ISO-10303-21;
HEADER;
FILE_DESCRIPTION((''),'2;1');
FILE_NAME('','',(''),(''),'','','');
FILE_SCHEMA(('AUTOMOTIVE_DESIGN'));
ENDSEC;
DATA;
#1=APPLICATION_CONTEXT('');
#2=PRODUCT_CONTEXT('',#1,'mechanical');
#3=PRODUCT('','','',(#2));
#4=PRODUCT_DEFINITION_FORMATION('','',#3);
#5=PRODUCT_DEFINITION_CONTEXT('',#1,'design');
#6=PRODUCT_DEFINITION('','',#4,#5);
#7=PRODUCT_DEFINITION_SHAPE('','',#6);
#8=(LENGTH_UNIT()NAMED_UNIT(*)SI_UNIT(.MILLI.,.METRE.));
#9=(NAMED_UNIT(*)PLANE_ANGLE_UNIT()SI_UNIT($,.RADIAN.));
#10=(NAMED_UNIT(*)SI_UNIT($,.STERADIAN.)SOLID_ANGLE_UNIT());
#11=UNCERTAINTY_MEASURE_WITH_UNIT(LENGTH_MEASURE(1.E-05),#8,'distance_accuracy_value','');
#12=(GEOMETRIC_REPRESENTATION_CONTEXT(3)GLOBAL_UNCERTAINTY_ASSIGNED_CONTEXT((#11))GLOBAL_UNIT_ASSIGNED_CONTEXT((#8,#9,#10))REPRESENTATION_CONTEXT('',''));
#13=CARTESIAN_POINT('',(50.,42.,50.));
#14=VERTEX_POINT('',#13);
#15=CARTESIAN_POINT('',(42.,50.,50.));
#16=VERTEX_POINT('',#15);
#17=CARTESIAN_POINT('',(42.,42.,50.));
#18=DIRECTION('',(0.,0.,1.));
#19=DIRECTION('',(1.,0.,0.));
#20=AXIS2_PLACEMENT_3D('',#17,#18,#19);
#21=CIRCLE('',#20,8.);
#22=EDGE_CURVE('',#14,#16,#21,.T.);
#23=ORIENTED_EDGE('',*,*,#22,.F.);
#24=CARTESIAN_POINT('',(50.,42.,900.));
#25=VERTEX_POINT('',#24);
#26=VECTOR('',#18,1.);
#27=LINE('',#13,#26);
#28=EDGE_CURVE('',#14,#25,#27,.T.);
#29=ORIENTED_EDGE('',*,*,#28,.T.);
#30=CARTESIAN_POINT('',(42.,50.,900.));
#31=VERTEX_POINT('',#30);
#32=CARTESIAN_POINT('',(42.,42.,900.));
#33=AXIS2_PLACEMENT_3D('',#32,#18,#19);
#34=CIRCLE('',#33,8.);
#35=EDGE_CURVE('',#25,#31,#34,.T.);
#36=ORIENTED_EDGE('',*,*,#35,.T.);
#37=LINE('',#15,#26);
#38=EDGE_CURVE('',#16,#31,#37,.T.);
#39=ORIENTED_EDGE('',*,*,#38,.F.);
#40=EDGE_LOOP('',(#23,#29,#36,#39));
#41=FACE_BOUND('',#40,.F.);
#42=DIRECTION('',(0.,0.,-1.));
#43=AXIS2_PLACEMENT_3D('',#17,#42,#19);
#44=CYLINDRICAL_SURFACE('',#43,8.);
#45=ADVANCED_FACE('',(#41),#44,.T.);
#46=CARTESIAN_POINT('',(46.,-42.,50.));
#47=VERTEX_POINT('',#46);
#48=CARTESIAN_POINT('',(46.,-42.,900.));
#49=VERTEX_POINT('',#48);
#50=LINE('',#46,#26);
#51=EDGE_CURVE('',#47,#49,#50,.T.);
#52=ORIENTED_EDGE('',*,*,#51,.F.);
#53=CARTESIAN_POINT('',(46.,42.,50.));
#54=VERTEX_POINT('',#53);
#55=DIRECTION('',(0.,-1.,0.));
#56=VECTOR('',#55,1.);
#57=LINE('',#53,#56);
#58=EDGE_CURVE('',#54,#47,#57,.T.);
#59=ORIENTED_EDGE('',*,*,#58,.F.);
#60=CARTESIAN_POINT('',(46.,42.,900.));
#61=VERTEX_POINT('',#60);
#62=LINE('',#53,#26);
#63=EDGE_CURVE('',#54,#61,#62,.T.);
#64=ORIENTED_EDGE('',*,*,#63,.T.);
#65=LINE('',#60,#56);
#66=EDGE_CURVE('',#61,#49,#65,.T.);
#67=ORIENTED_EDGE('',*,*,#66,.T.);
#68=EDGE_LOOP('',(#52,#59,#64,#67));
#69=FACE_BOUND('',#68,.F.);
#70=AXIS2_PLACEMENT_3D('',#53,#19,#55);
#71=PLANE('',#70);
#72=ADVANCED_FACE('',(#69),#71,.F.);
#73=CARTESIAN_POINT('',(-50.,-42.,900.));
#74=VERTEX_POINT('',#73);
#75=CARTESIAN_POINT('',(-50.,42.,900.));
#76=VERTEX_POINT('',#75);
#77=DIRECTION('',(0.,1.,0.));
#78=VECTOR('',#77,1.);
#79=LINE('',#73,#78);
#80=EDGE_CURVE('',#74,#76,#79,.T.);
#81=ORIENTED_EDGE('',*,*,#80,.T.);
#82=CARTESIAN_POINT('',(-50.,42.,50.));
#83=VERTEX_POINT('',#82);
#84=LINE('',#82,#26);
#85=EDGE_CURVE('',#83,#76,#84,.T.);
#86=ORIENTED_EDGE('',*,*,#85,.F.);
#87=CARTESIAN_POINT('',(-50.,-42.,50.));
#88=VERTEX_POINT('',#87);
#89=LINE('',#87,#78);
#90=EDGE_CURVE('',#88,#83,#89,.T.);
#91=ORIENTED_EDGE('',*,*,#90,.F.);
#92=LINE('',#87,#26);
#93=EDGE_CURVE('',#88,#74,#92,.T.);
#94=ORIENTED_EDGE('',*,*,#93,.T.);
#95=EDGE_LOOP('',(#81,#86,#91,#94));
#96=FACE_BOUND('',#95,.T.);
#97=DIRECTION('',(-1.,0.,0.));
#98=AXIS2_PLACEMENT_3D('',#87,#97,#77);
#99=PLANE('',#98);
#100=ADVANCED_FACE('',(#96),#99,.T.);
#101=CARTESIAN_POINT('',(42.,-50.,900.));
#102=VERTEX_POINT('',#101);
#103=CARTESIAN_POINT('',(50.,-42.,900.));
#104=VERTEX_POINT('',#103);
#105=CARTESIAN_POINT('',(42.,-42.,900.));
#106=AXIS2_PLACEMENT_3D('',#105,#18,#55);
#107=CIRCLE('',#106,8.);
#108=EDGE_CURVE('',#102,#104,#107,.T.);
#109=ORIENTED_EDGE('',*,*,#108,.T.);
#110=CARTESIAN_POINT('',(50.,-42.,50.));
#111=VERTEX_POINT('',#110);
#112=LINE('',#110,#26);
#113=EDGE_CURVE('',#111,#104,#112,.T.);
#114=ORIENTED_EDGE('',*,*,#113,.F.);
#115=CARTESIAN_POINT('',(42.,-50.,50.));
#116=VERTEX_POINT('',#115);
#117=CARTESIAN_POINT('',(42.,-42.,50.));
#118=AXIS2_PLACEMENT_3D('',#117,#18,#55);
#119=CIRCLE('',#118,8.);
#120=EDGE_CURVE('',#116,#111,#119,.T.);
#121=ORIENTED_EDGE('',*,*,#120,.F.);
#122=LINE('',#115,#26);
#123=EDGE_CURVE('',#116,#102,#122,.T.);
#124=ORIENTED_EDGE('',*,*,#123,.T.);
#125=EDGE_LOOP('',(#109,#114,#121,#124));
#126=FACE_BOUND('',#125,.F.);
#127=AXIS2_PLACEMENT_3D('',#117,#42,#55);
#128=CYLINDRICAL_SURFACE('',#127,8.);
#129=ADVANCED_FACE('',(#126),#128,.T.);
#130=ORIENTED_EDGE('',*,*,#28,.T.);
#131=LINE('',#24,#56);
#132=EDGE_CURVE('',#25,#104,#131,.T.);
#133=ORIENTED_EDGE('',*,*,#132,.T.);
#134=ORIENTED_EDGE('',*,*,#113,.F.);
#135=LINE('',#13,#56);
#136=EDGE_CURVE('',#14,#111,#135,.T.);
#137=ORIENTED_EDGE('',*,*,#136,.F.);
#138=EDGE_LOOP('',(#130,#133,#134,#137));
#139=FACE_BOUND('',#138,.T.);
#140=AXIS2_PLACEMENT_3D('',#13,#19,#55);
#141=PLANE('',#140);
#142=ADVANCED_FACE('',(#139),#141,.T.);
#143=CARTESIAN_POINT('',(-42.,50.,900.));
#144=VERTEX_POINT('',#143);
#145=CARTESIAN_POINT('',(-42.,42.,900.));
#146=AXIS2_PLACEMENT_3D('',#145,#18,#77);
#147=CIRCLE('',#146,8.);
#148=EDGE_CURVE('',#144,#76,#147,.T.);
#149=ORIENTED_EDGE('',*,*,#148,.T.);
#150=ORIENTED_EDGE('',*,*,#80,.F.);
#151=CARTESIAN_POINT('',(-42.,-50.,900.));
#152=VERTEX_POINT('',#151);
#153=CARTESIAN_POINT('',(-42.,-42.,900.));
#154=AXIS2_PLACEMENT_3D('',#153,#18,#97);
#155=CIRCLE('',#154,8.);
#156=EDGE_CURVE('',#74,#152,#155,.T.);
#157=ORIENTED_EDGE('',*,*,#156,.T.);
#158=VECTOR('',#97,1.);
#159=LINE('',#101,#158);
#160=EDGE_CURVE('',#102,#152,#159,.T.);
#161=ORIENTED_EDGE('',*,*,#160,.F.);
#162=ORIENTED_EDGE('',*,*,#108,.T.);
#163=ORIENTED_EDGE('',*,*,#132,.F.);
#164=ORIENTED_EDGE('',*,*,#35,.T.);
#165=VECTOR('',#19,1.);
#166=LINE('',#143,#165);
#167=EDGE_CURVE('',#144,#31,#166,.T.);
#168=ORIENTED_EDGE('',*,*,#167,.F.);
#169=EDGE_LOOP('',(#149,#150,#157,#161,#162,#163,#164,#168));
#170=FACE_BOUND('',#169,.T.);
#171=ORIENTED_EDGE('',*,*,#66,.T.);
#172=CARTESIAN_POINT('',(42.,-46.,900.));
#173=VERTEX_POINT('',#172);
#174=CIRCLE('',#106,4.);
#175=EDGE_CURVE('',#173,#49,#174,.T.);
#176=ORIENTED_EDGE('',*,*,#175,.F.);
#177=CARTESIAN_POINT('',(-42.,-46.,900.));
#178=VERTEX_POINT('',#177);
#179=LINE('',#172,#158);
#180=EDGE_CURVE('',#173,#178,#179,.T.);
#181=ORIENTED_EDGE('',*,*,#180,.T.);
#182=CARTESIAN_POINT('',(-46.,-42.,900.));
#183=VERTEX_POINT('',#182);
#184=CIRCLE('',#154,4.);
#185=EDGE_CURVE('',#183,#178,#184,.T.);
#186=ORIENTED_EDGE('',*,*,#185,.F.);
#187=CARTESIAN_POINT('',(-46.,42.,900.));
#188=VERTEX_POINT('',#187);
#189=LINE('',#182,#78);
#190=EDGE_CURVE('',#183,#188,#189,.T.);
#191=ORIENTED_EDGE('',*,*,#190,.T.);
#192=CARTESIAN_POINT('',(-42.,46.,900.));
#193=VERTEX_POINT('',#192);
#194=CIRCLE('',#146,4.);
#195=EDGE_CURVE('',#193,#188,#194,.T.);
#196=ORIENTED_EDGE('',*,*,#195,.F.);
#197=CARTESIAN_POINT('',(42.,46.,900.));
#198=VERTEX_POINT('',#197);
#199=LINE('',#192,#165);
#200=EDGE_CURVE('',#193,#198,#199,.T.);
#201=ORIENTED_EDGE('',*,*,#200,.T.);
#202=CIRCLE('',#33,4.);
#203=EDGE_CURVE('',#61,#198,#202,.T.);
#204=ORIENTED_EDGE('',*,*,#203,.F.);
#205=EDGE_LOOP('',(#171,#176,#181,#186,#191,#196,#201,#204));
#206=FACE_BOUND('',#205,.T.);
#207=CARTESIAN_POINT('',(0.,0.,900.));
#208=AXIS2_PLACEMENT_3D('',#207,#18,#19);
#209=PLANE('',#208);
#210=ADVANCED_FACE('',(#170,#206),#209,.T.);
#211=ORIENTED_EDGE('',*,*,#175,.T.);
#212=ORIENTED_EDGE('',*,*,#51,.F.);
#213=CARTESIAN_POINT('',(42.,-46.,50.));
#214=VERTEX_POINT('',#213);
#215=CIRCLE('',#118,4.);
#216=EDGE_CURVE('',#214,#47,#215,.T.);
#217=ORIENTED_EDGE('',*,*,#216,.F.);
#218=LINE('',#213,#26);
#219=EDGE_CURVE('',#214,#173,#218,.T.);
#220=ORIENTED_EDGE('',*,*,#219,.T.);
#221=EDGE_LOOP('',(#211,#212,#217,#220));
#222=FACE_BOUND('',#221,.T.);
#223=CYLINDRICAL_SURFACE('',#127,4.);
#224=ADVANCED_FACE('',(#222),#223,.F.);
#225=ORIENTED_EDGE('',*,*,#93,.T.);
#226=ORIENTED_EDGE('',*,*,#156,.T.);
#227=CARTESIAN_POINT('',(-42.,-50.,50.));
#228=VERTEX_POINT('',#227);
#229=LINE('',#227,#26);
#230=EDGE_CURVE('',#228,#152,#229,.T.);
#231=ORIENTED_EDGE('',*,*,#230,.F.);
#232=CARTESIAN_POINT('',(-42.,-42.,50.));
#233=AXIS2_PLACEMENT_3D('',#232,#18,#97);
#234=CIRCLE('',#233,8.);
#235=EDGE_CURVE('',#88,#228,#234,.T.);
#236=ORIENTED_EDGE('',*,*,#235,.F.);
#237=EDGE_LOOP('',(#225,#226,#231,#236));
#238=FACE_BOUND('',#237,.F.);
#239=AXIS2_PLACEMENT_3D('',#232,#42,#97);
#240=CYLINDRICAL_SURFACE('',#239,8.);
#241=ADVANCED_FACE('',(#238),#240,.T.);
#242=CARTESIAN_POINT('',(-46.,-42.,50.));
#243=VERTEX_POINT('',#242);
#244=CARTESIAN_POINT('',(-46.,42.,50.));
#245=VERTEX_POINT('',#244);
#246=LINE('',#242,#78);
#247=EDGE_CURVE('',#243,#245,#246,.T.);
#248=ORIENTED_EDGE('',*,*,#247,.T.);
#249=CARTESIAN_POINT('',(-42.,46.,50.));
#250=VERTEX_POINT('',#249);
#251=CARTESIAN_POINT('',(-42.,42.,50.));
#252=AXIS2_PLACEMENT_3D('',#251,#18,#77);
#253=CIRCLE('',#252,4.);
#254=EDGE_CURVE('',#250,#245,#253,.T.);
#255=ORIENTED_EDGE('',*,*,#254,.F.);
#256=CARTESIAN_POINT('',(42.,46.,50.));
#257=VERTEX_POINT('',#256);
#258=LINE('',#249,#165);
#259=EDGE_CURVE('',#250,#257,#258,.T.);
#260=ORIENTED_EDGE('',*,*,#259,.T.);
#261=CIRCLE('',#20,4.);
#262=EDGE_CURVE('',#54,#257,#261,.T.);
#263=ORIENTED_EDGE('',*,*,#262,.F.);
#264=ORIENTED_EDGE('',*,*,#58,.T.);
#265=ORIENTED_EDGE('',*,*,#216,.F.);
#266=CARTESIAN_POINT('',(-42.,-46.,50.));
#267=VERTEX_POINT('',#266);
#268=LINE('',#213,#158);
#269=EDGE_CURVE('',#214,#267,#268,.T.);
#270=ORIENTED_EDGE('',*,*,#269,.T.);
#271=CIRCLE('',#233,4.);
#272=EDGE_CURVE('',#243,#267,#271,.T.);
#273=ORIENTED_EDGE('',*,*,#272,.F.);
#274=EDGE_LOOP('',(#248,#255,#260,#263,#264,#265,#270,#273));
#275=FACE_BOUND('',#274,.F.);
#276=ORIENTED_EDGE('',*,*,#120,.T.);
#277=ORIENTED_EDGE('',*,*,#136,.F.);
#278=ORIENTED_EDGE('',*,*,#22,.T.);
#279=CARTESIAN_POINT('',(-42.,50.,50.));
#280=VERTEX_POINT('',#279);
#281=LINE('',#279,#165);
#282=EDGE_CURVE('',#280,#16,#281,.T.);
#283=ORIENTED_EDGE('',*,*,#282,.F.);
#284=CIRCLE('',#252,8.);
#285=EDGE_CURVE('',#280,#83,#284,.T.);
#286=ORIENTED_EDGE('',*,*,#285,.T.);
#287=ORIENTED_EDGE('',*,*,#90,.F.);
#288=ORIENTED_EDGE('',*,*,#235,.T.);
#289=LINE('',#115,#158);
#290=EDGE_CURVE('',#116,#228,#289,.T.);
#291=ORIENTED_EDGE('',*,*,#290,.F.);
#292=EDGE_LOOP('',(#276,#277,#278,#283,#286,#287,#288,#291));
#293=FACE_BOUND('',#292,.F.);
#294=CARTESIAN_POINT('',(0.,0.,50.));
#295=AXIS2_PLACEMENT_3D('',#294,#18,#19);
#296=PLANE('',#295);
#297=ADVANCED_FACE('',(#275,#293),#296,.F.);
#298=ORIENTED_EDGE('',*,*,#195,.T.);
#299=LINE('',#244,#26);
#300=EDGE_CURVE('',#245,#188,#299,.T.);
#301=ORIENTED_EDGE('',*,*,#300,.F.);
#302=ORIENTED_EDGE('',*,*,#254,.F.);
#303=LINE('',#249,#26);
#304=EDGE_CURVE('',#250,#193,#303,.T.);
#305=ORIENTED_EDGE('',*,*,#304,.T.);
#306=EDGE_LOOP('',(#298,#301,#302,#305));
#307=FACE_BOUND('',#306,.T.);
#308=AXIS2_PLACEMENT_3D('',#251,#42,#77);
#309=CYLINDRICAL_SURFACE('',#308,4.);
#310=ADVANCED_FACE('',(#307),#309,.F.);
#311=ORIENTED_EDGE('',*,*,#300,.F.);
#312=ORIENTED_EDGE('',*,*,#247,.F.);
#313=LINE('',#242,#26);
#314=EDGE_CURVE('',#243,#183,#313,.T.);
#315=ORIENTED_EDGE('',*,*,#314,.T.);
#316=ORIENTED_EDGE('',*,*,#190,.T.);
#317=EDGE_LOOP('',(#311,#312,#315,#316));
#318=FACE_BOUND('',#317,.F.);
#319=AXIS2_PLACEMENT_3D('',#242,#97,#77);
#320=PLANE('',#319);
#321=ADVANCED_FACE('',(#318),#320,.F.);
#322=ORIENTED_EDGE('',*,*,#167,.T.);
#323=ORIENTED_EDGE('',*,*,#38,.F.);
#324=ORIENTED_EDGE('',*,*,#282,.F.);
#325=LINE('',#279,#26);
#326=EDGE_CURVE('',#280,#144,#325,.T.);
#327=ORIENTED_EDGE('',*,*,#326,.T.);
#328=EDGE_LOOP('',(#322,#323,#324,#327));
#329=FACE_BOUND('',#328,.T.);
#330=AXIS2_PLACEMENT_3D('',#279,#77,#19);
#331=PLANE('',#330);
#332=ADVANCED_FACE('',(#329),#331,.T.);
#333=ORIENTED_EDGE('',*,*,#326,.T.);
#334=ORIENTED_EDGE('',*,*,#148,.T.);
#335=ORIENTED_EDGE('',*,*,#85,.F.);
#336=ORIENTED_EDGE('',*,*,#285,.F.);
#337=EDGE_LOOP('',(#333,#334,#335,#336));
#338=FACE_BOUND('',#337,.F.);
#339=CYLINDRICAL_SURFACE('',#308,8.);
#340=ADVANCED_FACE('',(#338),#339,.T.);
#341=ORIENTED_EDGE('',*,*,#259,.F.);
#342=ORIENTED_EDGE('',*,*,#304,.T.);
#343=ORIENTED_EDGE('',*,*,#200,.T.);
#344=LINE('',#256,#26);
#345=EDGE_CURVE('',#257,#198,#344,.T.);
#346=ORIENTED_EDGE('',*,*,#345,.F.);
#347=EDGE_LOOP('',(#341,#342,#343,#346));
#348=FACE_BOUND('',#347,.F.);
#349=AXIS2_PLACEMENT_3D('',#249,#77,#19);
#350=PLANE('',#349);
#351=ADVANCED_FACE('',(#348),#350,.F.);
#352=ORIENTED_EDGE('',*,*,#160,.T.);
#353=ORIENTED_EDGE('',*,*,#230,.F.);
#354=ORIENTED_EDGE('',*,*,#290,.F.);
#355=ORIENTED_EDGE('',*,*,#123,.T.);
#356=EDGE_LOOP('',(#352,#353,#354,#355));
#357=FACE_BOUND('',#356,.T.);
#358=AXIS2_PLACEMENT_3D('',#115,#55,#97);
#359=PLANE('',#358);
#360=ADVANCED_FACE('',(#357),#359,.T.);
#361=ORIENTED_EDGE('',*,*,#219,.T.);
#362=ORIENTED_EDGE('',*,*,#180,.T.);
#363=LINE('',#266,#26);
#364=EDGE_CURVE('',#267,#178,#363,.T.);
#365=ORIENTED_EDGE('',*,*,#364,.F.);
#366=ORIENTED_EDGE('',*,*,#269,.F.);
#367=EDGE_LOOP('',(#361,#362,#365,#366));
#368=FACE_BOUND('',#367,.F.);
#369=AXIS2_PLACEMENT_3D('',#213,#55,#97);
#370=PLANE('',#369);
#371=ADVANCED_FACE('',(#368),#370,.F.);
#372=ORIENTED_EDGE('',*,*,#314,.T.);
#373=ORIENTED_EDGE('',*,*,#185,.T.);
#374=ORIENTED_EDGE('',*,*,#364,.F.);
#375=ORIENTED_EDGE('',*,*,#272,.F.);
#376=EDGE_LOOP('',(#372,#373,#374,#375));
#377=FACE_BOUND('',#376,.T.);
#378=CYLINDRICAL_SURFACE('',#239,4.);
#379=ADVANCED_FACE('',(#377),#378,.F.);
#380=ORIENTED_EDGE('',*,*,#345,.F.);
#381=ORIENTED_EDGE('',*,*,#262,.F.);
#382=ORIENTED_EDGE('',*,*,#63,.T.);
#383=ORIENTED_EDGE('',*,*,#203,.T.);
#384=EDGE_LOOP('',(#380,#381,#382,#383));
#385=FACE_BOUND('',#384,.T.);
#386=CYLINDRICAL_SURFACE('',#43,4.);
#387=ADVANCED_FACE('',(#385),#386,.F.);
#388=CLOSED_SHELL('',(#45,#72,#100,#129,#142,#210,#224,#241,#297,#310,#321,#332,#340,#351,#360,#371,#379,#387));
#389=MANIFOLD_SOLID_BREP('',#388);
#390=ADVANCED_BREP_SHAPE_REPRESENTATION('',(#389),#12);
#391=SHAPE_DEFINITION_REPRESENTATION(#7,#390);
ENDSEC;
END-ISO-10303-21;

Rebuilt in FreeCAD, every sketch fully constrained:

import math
import FreeCAD as App
import Part
import Sketcher
from FreeCAD import Vector

doc = App.newDocument("Part")
params = doc.addObject("Spreadsheet::Sheet", "Params")
for row, (alias, value) in enumerate([
    ("sketch1_radius", "8 mm"),
    ("sketch1_radius2", "4 mm"),
    ("pad1_length", "850 mm"),
], start=1):
    params.set(f"A{row}", alias)
    params.set(f"B{row}", "=" + value)
    params.setAlias(f"B{row}", alias)

body = doc.addObject("PartDesign::Body", "Body")

# Sketch on XY plane
sketch1 = body.newObject("Sketcher::SketchObject", "Sketch")
sketch1.AttachmentSupport = (doc.getObject("XY_Plane"), [""])
sketch1.MapMode = "FlatFace"
sketch1.AttachmentOffset = App.Placement(Vector(0, 0, 50), App.Rotation())
sketch1.addGeometry([
    Part.LineSegment(Vector(-50, 42, 0), Vector(-50, -42, 0)),  # 0
    Part.ArcOfCircle(Part.Circle(Vector(-42, -42, 0), Vector(0, 0, 1), 8), math.radians(180), math.radians(270)),  # 1
    Part.LineSegment(Vector(-42, -50, 0), Vector(42, -50, 0)),  # 2
    Part.ArcOfCircle(Part.Circle(Vector(42, -42, 0), Vector(0, 0, 1), 8), math.radians(-90), math.radians(0)),  # 3
    Part.LineSegment(Vector(50, -42, 0), Vector(50, 42, 0)),  # 4
    Part.ArcOfCircle(Part.Circle(Vector(42, 42, 0), Vector(0, 0, 1), 8), math.radians(0), math.radians(90)),  # 5
    Part.LineSegment(Vector(42, 50, 0), Vector(-42, 50, 0)),  # 6
    Part.ArcOfCircle(Part.Circle(Vector(-42, 42, 0), Vector(0, 0, 1), 8), math.radians(90), math.radians(180)),  # 7
    Part.ArcOfCircle(Part.Circle(Vector(-42, 42, 0), Vector(0, 0, 1), 4), math.radians(90), math.radians(180)),  # 8
    Part.LineSegment(Vector(-42, 46, 0), Vector(42, 46, 0)),  # 9
    Part.ArcOfCircle(Part.Circle(Vector(42, 42, 0), Vector(0, 0, 1), 4), math.radians(0), math.radians(90)),  # 10
    Part.LineSegment(Vector(46, 42, 0), Vector(46, -42, 0)),  # 11
    Part.ArcOfCircle(Part.Circle(Vector(42, -42, 0), Vector(0, 0, 1), 4), math.radians(-90), math.radians(0)),  # 12
    Part.LineSegment(Vector(42, -46, 0), Vector(-42, -46, 0)),  # 13
    Part.ArcOfCircle(Part.Circle(Vector(-42, -42, 0), Vector(0, 0, 1), 4), math.radians(180), math.radians(270)),  # 14
    Part.LineSegment(Vector(-46, -42, 0), Vector(-46, 42, 0)),  # 15
], False)
sketch1.addConstraint([
    Sketcher.Constraint("Tangent", 0, 2, 1, 1),
    Sketcher.Constraint("Tangent", 1, 2, 2, 1),
    Sketcher.Constraint("Tangent", 2, 2, 3, 1),
    Sketcher.Constraint("Tangent", 3, 2, 4, 1),
    Sketcher.Constraint("Tangent", 4, 2, 5, 1),
    Sketcher.Constraint("Tangent", 5, 2, 6, 1),
    Sketcher.Constraint("Tangent", 6, 2, 7, 1),
    Sketcher.Constraint("Tangent", 7, 2, 0, 1),
    Sketcher.Constraint("Tangent", 8, 1, 9, 1),
    Sketcher.Constraint("Tangent", 9, 2, 10, 2),
    Sketcher.Constraint("Tangent", 10, 1, 11, 1),
    Sketcher.Constraint("Tangent", 11, 2, 12, 2),
    Sketcher.Constraint("Tangent", 12, 1, 13, 1),
    Sketcher.Constraint("Tangent", 13, 2, 14, 2),
    Sketcher.Constraint("Tangent", 14, 1, 15, 1),
    Sketcher.Constraint("Tangent", 15, 2, 8, 2),
    Sketcher.Constraint("Vertical", 0),
    Sketcher.Constraint("Horizontal", 2),
    Sketcher.Constraint("Vertical", 4),
    Sketcher.Constraint("Horizontal", 6),
    Sketcher.Constraint("Horizontal", 9),
    Sketcher.Constraint("Vertical", 11),
    Sketcher.Constraint("Horizontal", 13),
    Sketcher.Constraint("Vertical", 15),
    Sketcher.Constraint("Coincident", 8, 3, 7, 3),
    Sketcher.Constraint("Coincident", 10, 3, 5, 3),
    Sketcher.Constraint("Coincident", 12, 3, 3, 3),
    Sketcher.Constraint("Equal", 1, 3),
    Sketcher.Constraint("Equal", 3, 5),
    Sketcher.Constraint("Equal", 5, 7),
    Sketcher.Constraint("Equal", 12, 14),
    Sketcher.Constraint("Symmetric", 1, 3, 5, 3, -1, 1),
    Sketcher.Constraint("Equal", 13, 0),
    Sketcher.Constraint("Radius", 1, 8.0),
    Sketcher.Constraint("Radius", 8, 4.0),
    Sketcher.Constraint("DistanceX", 0, 2, -1, 1, 50.0),
])
sketch1.setExpression("Constraints[33]", "Params.sketch1_radius")
sketch1.setExpression("Constraints[34]", "Params.sketch1_radius2")
pad1 = body.newObject("PartDesign::Pad", "Pad")
pad1.Profile = sketch1
pad1.setExpression("Length", "Params.pad1_length")

doc.recompute()
